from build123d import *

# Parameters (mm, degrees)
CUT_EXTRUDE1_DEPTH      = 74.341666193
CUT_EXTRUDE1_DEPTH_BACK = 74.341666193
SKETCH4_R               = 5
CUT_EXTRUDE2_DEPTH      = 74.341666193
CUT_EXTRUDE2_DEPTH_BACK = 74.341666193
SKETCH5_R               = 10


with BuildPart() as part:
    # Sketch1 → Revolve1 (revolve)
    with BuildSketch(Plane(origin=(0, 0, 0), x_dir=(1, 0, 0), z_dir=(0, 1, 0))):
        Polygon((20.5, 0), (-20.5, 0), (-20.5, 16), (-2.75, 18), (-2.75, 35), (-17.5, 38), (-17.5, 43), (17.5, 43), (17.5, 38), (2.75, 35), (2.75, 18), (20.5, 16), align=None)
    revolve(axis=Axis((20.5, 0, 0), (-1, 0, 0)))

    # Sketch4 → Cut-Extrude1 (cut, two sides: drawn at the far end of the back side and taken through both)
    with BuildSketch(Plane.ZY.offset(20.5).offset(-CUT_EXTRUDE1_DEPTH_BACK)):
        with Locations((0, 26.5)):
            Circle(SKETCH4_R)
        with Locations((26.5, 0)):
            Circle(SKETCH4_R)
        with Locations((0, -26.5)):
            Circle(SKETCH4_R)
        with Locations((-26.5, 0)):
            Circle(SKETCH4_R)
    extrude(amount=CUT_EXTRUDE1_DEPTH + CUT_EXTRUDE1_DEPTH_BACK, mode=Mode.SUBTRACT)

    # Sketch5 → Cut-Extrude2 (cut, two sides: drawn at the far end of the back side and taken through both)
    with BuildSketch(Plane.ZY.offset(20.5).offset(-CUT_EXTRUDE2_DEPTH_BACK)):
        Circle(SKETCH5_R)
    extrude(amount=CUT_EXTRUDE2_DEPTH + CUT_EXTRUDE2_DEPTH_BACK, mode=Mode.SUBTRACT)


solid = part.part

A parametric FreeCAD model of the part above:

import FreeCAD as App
import Part
import Sketcher

V = App.Vector
Q = App.Units.Quantity

doc = App.newDocument("Part")
body = doc.addObject("PartDesign::Body", "Body")

# Sketch on XZ plane
sketch1 = body.newObject("Sketcher::SketchObject", "Sketch")
sketch1.AttachmentSupport = (doc.getObject("XZ_Plane"), [""])
sketch1.MapMode = "FlatFace"
sketch1.addGeometry([
    Part.LineSegment(V(-20, 0, 0), V(20, 0, 0)),  # 0
    Part.LineSegment(V(20, 0, 0), V(20, -16, 0)),  # 1
    Part.LineSegment(V(20, -16, 0), V(3, -18, 0)),  # 2
    Part.LineSegment(V(3, -18, 0), V(3, -35, 0)),  # 3
    Part.LineSegment(V(3, -35, 0), V(18, -38, 0)),  # 4
    Part.LineSegment(V(18, -38, 0), V(18, -43, 0)),  # 5
    Part.LineSegment(V(18, -43, 0), V(-18, -43, 0)),  # 6
    Part.LineSegment(V(-18, -43, 0), V(-18, -38, 0)),  # 7
    Part.LineSegment(V(-18, -38, 0), V(-3, -35, 0)),  # 8
    Part.LineSegment(V(-3, -35, 0), V(-3, -18, 0)),  # 9
    Part.LineSegment(V(-3, -18, 0), V(-20, -16, 0)),  # 10
    Part.LineSegment(V(-20, -16, 0), V(-20, 0, 0)),  # 11
], False)
sketch1.addConstraint([
    Sketcher.Constraint("Coincident", 0, 2, 1, 1),
    Sketcher.Constraint("Coincident", 1, 2, 2, 1),
    Sketcher.Constraint("Coincident", 2, 2, 3, 1),
    Sketcher.Constraint("Coincident", 3, 2, 4, 1),
    Sketcher.Constraint("Coincident", 4, 2, 5, 1),
    Sketcher.Constraint("Coincident", 5, 2, 6, 1),
    Sketcher.Constraint("Coincident", 6, 2, 7, 1),
    Sketcher.Constraint("Coincident", 7, 2, 8, 1),
    Sketcher.Constraint("Coincident", 8, 2, 9, 1),
    Sketcher.Constraint("Coincident", 9, 2, 10, 1),
    Sketcher.Constraint("Coincident", 10, 2, 11, 1),
    Sketcher.Constraint("Coincident", 11, 2, 0, 1),
    Sketcher.Constraint("Horizontal", 0),
    Sketcher.Constraint("Vertical", 1),
    Sketcher.Constraint("Vertical", 3),
    Sketcher.Constraint("Vertical", 5),
    Sketcher.Constraint("Horizontal", 6),
    Sketcher.Constraint("Vertical", 7),
    Sketcher.Constraint("Vertical", 9),
    Sketcher.Constraint("Vertical", 11),
    Sketcher.Constraint("Symmetric", 0, 2, 11, 2, -1, 1),
    Sketcher.Constraint("Symmetric", 4, 2, 7, 2, -2),
    Sketcher.Constraint("Symmetric", 3, 2, 8, 2, -2),
    Sketcher.Constraint("Horizontal", 2, 2, 9, 2),
    Sketcher.Constraint("Horizontal", 1, 2, 10, 2),
    Sketcher.Constraint("DistanceX", 0, 1, 0, 2, Q("41 mm")),
    Sketcher.Constraint("DistanceX", 6, 2, 6, 1, Q("35 mm")),
    Sketcher.Constraint("DistanceY", 1, 2, 1, 1, Q("16 mm")),
    Sketcher.Constraint("DistanceY", 3, 2, 3, 1, Q("17 mm")),
    Sketcher.Constraint("DistanceY", 5, 2, 5, 1, Q("5 mm")),
    Sketcher.Constraint("DistanceY", 2, 2, -1, 1, Q("18 mm")),
    Sketcher.Constraint("DistanceY", 4, 2, -1, 1, Q("38 mm")),
    Sketcher.Constraint("DistanceX", 8, 2, 3, 2, Q("5.5 mm")),
])
revolution = body.newObject("PartDesign::Revolution", "Revolution")
revolution.Profile = sketch1
revolution.ReferenceAxis = (sketch1, ["H_Axis"])
revolution.Angle = 360

# Sketch on YZ plane
sketch2 = body.newObject("Sketcher::SketchObject", "Sketch001")
sketch2.AttachmentSupport = (doc.getObject("YZ_Plane"), [""])
sketch2.MapMode = "FlatFace"
sketch2.AttachmentOffset = App.Placement(V(0, 0, -20.5), App.Rotation())
sketch2.addGeometry([
    Part.Circle(V(26, 0, 0), V(0, 0, 1), 5),
    Part.Circle(V(0, 26, 0), V(0, 0, 1), 5),
    Part.Circle(V(-26, 0, 0), V(0, 0, 1), 5),
    Part.Circle(V(0, -26, 0), V(0, 0, 1), 5),
], False)
sketch2.addConstraint([
    Sketcher.Constraint("Equal", 0, 1),
    Sketcher.Constraint("Equal", 1, 2),
    Sketcher.Constraint("Equal", 2, 3),
    Sketcher.Constraint("Symmetric", 0, 3, 2, 3, -1, 1),
    Sketcher.Constraint("Symmetric", 1, 3, 3, 3, -1, 1),
    Sketcher.Constraint("PointOnObject", 0, 3, -1),
    Sketcher.Constraint("PointOnObject", 1, 3, -2),
    Sketcher.Constraint("Diameter", 0, Q("10 mm")),
    Sketcher.Constraint("DistanceX", 2, 3, 0, 3, Q("53 mm")),
    Sketcher.Constraint("DistanceY", 3, 3, 1, 3, Q("53 mm")),
])
pocket1 = body.newObject("PartDesign::Pocket", "Pocket")
pocket1.Profile = sketch2
pocket1.Type = "ThroughAll"
pocket1.Midplane = True

# Sketch on YZ plane
sketch3 = body.newObject("Sketcher::SketchObject", "Sketch002")
sketch3.AttachmentSupport = (doc.getObject("YZ_Plane"), [""])
sketch3.MapMode = "FlatFace"
sketch3.AttachmentOffset = App.Placement(V(0, 0, -20.5), App.Rotation())
sketch3.addGeometry(Part.Circle(V(0, 0, 0), V(0, 0, 1), 10), False)
sketch3.addConstraint([
    Sketcher.Constraint("Coincident", 0, 3, -1, 1),
    Sketcher.Constraint("Diameter", 0, Q("20 mm")),
])
pocket2 = body.newObject("PartDesign::Pocket", "Pocket001")
pocket2.Profile = sketch3
pocket2.Type = "ThroughAll"
pocket2.Midplane = True

doc.recompute()
